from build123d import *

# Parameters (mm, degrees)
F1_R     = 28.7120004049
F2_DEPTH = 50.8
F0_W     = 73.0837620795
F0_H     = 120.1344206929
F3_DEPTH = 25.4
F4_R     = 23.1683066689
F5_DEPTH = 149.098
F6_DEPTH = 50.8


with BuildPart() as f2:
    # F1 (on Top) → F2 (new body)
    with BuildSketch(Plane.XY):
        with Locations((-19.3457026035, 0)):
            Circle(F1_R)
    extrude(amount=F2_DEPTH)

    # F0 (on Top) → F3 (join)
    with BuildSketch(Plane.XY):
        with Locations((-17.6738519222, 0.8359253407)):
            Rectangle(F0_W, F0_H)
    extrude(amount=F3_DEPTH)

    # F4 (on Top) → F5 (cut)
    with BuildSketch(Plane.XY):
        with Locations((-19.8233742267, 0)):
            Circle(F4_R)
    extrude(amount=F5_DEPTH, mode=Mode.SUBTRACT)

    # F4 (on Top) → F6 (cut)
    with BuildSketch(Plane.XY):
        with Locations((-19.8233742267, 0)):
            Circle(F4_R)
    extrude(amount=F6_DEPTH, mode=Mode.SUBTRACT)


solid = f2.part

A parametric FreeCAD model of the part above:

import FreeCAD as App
import Part
import Sketcher
Q = App.Units.Quantity


def add_polygon(sketch, points):
    """Adds a closed chain of lines whose ends are joined by coincident constraints."""
    first, n = sketch.GeometryCount, len(points)
    for a, b in zip(points, points[1:] + points[:1]):
        sketch.addGeometry(Part.LineSegment(App.Vector(*a, 0), App.Vector(*b, 0)), False)
    for i in range(n):
        sketch.addConstraint(Sketcher.Constraint("Coincident", first + i, 2, first + (i + 1) % n, 1))

doc = App.newDocument("Part")
body = doc.addObject("PartDesign::Body", "Body")

# Sketch on XY plane
sketch1 = body.newObject("Sketcher::SketchObject", "Sketch")
sketch1.AttachmentSupport = (doc.getObject("XY_Plane"), [""])
sketch1.MapMode = "FlatFace"
sketch1.addGeometry(Part.Circle(App.Vector(-19.345703, 0, 0), App.Vector(0, 0, 1), 28.712), False)
sketch1.addConstraint(Sketcher.Constraint("PointOnObject", 0, 3, -1))
sketch1.addConstraint(Sketcher.Constraint("Diameter", 0, 57.424001))
sketch1.addConstraint(Sketcher.Constraint("DistanceX", 0, 3, -1, 1, 19.345703))
pad1 = body.newObject("PartDesign::Pad", "Pad")
pad1.Profile = sketch1
pad1.Length = Q("2 in")

# Sketch on XY plane
sketch2 = body.newObject("Sketcher::SketchObject", "Sketch001")
sketch2.AttachmentSupport = (doc.getObject("XY_Plane"), [""])
sketch2.MapMode = "FlatFace"
add_polygon(sketch2, [(-54.215733, 60.903136), (-54.215733, -59.231285), (18.868029, -59.231285), (18.868029, 60.903136)])  # lines 0-3
sketch2.addConstraint(Sketcher.Constraint("Vertical", 0))
sketch2.addConstraint(Sketcher.Constraint("Horizontal", 1))
sketch2.addConstraint(Sketcher.Constraint("Vertical", 2))
sketch2.addConstraint(Sketcher.Constraint("Horizontal", 3))
sketch2.addConstraint(Sketcher.Constraint("DistanceY", 0, 2, 0, 1, 120.134421))
sketch2.addConstraint(Sketcher.Constraint("DistanceX", 1, 1, 1, 2, 73.083762))
sketch2.addConstraint(Sketcher.Constraint("DistanceX", -1, 1, 1, 2, 18.868029))
sketch2.addConstraint(Sketcher.Constraint("DistanceY", 0, 2, -1, 1, 59.231285))
pad2 = body.newObject("PartDesign::Pad", "Pad001")
pad2.Profile = sketch2
pad2.Length = Q("1 in")

# Sketch on XY plane
sketch3 = body.newObject("Sketcher::SketchObject", "Sketch002")
sketch3.AttachmentSupport = (doc.getObject("XY_Plane"), [""])
sketch3.MapMode = "FlatFace"
sketch3.addGeometry(Part.Circle(App.Vector(-19.823374, 0, 0), App.Vector(0, 0, 1), 23.168307), False)
sketch3.addConstraint(Sketcher.Constraint("PointOnObject", 0, 3, -1))
sketch3.addConstraint(Sketcher.Constraint("Diameter", 0, 46.336613))
sketch3.addConstraint(Sketcher.Constraint("DistanceX", 0, 3, -1, 1, 19.823374))
pocket1 = body.newObject("PartDesign::Pocket", "Pocket")
pocket1.Profile = sketch3
pocket1.Length = Q("5.87 in")
pocket1.Reversed = True

# Sketch on XY plane
sketch4 = body.newObject("Sketcher::SketchObject", "Sketch003")
sketch4.AttachmentSupport = (doc.getObject("XY_Plane"), [""])
sketch4.MapMode = "FlatFace"
sketch4.addGeometry(Part.Circle(App.Vector(-19.823374, 0, 0), App.Vector(0, 0, 1), 23.168307), False)
sketch4.addConstraint(Sketcher.Constraint("PointOnObject", 0, 3, -1))
sketch4.addConstraint(Sketcher.Constraint("Diameter", 0, 46.336613))
sketch4.addConstraint(Sketcher.Constraint("DistanceX", 0, 3, -1, 1, 19.823374))
pocket2 = body.newObject("PartDesign::Pocket", "Pocket001")
pocket2.Profile = sketch4
pocket2.Length = Q("2 in")
pocket2.Reversed = True

doc.recompute()
